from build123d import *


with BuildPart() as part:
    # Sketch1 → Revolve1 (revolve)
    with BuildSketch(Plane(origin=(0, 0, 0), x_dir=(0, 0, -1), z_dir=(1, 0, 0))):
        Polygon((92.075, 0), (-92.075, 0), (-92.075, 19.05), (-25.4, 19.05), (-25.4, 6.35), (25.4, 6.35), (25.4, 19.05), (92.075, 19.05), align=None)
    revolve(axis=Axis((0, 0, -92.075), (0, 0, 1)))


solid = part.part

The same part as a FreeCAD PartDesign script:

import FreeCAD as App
import Part
import Sketcher
Q = App.Units.Quantity


def add_polygon(sketch, points):
    """Adds a closed chain of lines whose ends are joined by coincident constraints."""
    first, n = sketch.GeometryCount, len(points)
    for a, b in zip(points, points[1:] + points[:1]):
        sketch.addGeometry(Part.LineSegment(App.Vector(*a, 0), App.Vector(*b, 0)), False)
    for i in range(n):
        sketch.addConstraint(Sketcher.Constraint("Coincident", first + i, 2, first + (i + 1) % n, 1))

doc = App.newDocument("Part")
body = doc.addObject("PartDesign::Body", "Body")

sketch1 = body.newObject("Sketcher::SketchObject", "Sketch")
sketch1.AttachmentSupport = (doc.getObject("YZ_Plane"), [""])
sketch1.MapMode = "FlatFace"
add_polygon(sketch1, [(0, 92), (0, -92), (19, -92), (19, -25), (6, -25), (6, 25), (19, 25), (19, 92)])
sketch1.addConstraint([
    Sketcher.Constraint("Vertical", 0),
    Sketcher.Constraint("Horizontal", 1),
    Sketcher.Constraint("Vertical", 2),
    Sketcher.Constraint("Horizontal", 3),
    Sketcher.Constraint("Vertical", 4),
    Sketcher.Constraint("Horizontal", 5),
    Sketcher.Constraint("Vertical", 6),
    Sketcher.Constraint("Horizontal", 7),
    Sketcher.Constraint("Symmetric", 0, 2, 7, 2, -1, 1),
    Sketcher.Constraint("Symmetric", 2, 2, 5, 2, -1),
    Sketcher.Constraint("DistanceY", 4, 1, 4, 2, Q("2 in")),
    Sketcher.Constraint("DistanceX", 3, 2, 3, 1, Q("0.5 in")),
    Sketcher.Constraint("DistanceX", 1, 1, 1, 2, Q("0.75 in")),
    Sketcher.Constraint("DistanceY", 0, 2, 0, 1, Q("7.25 in")),
])
revolution = body.newObject("PartDesign::Revolution", "Revolution")
revolution.Profile = sketch1
revolution.ReferenceAxis = (sketch1, ["V_Axis"])
revolution.Angle = 360

doc.recompute()
